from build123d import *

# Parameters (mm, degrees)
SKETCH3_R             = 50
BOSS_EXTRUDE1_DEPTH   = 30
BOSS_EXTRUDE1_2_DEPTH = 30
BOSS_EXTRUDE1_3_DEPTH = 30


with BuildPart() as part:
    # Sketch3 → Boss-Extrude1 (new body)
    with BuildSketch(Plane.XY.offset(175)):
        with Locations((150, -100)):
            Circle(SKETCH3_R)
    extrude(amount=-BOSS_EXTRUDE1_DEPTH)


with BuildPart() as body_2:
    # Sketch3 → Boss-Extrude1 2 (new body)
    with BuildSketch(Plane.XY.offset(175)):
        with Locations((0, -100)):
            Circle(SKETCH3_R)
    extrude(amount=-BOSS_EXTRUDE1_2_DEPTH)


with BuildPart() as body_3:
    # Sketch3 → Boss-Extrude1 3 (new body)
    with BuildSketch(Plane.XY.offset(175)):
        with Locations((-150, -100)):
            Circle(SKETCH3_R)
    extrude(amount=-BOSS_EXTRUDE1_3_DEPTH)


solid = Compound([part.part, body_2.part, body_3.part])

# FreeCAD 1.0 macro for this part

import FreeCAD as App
import Part
import Sketcher

V = App.Vector

doc = App.newDocument("Part")
params = doc.addObject("Spreadsheet::Sheet", "Params")
for row, (alias, value) in enumerate([
    ("sketch1_diameter", "100 mm"),
    ("pad1_length", "30 mm"),
    ("sketch2_diameter", "100 mm"),
    ("pad2_length", "30 mm"),
    ("sketch3_diameter", "100 mm"),
    ("pad3_length", "30 mm"),
], start=1):
    params.set(f"A{row}", alias)
    params.set(f"B{row}", "=" + value)
    params.setAlias(f"B{row}", alias)

body = doc.addObject("PartDesign::Body", "Body")

# Sketch on XY plane
sketch1 = body.newObject("Sketcher::SketchObject", "Sketch")
sketch1.AttachmentSupport = (doc.getObject("XY_Plane"), [""])
sketch1.MapMode = "FlatFace"
sketch1.AttachmentOffset = App.Placement(V(0, 0, 175), App.Rotation())
sketch1.addGeometry(Part.Circle(V(150, -100, 0), V(0, 0, 1), 50), False)
sketch1.addConstraint([
    Sketcher.Constraint("Diameter", 0, 100.0),
    Sketcher.Constraint("DistanceX", -1, 1, 0, 3, 150.0),
    Sketcher.Constraint("DistanceY", 0, 3, -1, 1, 100.0),
])
sketch1.setExpression("Constraints[0]", "Params.sketch1_diameter")
pad1 = body.newObject("PartDesign::Pad", "Pad")
pad1.Profile = sketch1
pad1.setExpression("Length", "Params.pad1_length")
pad1.Reversed = True
body2 = doc.addObject("PartDesign::Body", "Body001")

# Sketch on XY plane
sketch2 = body2.newObject("Sketcher::SketchObject", "Sketch001")
sketch2.AttachmentSupport = (doc.getObject("XY_Plane001"), [""])
sketch2.MapMode = "FlatFace"
sketch2.AttachmentOffset = App.Placement(V(0, 0, 175), App.Rotation())
sketch2.addGeometry(Part.Circle(V(0, -100, 0), V(0, 0, 1), 50), False)
sketch2.addConstraint([
    Sketcher.Constraint("PointOnObject", 0, 3, -2),
    Sketcher.Constraint("Diameter", 0, 100.0),
    Sketcher.Constraint("DistanceY", 0, 3, -1, 1, 100.0),
])
sketch2.setExpression("Constraints[1]", "Params.sketch2_diameter")
pad2 = body2.newObject("PartDesign::Pad", "Pad001")
pad2.Profile = sketch2
pad2.setExpression("Length", "Params.pad2_length")
pad2.Reversed = True
body3 = doc.addObject("PartDesign::Body", "Body002")

# Sketch on XY plane
sketch3 = body3.newObject("Sketcher::SketchObject", "Sketch002")
sketch3.AttachmentSupport = (doc.getObject("XY_Plane002"), [""])
sketch3.MapMode = "FlatFace"
sketch3.AttachmentOffset = App.Placement(V(0, 0, 175), App.Rotation())
sketch3.addGeometry(Part.Circle(V(-150, -100, 0), V(0, 0, 1), 50), False)
sketch3.addConstraint([
    Sketcher.Constraint("Diameter", 0, 100.0),
    Sketcher.Constraint("DistanceX", 0, 3, -1, 1, 150.0),
    Sketcher.Constraint("DistanceY", 0, 3, -1, 1, 100.0),
])
sketch3.setExpression("Constraints[0]", "Params.sketch3_diameter")
pad3 = body3.newObject("PartDesign::Pad", "Pad002")
pad3.Profile = sketch3
pad3.setExpression("Length", "Params.pad3_length")
pad3.Reversed = True

doc.recompute()
